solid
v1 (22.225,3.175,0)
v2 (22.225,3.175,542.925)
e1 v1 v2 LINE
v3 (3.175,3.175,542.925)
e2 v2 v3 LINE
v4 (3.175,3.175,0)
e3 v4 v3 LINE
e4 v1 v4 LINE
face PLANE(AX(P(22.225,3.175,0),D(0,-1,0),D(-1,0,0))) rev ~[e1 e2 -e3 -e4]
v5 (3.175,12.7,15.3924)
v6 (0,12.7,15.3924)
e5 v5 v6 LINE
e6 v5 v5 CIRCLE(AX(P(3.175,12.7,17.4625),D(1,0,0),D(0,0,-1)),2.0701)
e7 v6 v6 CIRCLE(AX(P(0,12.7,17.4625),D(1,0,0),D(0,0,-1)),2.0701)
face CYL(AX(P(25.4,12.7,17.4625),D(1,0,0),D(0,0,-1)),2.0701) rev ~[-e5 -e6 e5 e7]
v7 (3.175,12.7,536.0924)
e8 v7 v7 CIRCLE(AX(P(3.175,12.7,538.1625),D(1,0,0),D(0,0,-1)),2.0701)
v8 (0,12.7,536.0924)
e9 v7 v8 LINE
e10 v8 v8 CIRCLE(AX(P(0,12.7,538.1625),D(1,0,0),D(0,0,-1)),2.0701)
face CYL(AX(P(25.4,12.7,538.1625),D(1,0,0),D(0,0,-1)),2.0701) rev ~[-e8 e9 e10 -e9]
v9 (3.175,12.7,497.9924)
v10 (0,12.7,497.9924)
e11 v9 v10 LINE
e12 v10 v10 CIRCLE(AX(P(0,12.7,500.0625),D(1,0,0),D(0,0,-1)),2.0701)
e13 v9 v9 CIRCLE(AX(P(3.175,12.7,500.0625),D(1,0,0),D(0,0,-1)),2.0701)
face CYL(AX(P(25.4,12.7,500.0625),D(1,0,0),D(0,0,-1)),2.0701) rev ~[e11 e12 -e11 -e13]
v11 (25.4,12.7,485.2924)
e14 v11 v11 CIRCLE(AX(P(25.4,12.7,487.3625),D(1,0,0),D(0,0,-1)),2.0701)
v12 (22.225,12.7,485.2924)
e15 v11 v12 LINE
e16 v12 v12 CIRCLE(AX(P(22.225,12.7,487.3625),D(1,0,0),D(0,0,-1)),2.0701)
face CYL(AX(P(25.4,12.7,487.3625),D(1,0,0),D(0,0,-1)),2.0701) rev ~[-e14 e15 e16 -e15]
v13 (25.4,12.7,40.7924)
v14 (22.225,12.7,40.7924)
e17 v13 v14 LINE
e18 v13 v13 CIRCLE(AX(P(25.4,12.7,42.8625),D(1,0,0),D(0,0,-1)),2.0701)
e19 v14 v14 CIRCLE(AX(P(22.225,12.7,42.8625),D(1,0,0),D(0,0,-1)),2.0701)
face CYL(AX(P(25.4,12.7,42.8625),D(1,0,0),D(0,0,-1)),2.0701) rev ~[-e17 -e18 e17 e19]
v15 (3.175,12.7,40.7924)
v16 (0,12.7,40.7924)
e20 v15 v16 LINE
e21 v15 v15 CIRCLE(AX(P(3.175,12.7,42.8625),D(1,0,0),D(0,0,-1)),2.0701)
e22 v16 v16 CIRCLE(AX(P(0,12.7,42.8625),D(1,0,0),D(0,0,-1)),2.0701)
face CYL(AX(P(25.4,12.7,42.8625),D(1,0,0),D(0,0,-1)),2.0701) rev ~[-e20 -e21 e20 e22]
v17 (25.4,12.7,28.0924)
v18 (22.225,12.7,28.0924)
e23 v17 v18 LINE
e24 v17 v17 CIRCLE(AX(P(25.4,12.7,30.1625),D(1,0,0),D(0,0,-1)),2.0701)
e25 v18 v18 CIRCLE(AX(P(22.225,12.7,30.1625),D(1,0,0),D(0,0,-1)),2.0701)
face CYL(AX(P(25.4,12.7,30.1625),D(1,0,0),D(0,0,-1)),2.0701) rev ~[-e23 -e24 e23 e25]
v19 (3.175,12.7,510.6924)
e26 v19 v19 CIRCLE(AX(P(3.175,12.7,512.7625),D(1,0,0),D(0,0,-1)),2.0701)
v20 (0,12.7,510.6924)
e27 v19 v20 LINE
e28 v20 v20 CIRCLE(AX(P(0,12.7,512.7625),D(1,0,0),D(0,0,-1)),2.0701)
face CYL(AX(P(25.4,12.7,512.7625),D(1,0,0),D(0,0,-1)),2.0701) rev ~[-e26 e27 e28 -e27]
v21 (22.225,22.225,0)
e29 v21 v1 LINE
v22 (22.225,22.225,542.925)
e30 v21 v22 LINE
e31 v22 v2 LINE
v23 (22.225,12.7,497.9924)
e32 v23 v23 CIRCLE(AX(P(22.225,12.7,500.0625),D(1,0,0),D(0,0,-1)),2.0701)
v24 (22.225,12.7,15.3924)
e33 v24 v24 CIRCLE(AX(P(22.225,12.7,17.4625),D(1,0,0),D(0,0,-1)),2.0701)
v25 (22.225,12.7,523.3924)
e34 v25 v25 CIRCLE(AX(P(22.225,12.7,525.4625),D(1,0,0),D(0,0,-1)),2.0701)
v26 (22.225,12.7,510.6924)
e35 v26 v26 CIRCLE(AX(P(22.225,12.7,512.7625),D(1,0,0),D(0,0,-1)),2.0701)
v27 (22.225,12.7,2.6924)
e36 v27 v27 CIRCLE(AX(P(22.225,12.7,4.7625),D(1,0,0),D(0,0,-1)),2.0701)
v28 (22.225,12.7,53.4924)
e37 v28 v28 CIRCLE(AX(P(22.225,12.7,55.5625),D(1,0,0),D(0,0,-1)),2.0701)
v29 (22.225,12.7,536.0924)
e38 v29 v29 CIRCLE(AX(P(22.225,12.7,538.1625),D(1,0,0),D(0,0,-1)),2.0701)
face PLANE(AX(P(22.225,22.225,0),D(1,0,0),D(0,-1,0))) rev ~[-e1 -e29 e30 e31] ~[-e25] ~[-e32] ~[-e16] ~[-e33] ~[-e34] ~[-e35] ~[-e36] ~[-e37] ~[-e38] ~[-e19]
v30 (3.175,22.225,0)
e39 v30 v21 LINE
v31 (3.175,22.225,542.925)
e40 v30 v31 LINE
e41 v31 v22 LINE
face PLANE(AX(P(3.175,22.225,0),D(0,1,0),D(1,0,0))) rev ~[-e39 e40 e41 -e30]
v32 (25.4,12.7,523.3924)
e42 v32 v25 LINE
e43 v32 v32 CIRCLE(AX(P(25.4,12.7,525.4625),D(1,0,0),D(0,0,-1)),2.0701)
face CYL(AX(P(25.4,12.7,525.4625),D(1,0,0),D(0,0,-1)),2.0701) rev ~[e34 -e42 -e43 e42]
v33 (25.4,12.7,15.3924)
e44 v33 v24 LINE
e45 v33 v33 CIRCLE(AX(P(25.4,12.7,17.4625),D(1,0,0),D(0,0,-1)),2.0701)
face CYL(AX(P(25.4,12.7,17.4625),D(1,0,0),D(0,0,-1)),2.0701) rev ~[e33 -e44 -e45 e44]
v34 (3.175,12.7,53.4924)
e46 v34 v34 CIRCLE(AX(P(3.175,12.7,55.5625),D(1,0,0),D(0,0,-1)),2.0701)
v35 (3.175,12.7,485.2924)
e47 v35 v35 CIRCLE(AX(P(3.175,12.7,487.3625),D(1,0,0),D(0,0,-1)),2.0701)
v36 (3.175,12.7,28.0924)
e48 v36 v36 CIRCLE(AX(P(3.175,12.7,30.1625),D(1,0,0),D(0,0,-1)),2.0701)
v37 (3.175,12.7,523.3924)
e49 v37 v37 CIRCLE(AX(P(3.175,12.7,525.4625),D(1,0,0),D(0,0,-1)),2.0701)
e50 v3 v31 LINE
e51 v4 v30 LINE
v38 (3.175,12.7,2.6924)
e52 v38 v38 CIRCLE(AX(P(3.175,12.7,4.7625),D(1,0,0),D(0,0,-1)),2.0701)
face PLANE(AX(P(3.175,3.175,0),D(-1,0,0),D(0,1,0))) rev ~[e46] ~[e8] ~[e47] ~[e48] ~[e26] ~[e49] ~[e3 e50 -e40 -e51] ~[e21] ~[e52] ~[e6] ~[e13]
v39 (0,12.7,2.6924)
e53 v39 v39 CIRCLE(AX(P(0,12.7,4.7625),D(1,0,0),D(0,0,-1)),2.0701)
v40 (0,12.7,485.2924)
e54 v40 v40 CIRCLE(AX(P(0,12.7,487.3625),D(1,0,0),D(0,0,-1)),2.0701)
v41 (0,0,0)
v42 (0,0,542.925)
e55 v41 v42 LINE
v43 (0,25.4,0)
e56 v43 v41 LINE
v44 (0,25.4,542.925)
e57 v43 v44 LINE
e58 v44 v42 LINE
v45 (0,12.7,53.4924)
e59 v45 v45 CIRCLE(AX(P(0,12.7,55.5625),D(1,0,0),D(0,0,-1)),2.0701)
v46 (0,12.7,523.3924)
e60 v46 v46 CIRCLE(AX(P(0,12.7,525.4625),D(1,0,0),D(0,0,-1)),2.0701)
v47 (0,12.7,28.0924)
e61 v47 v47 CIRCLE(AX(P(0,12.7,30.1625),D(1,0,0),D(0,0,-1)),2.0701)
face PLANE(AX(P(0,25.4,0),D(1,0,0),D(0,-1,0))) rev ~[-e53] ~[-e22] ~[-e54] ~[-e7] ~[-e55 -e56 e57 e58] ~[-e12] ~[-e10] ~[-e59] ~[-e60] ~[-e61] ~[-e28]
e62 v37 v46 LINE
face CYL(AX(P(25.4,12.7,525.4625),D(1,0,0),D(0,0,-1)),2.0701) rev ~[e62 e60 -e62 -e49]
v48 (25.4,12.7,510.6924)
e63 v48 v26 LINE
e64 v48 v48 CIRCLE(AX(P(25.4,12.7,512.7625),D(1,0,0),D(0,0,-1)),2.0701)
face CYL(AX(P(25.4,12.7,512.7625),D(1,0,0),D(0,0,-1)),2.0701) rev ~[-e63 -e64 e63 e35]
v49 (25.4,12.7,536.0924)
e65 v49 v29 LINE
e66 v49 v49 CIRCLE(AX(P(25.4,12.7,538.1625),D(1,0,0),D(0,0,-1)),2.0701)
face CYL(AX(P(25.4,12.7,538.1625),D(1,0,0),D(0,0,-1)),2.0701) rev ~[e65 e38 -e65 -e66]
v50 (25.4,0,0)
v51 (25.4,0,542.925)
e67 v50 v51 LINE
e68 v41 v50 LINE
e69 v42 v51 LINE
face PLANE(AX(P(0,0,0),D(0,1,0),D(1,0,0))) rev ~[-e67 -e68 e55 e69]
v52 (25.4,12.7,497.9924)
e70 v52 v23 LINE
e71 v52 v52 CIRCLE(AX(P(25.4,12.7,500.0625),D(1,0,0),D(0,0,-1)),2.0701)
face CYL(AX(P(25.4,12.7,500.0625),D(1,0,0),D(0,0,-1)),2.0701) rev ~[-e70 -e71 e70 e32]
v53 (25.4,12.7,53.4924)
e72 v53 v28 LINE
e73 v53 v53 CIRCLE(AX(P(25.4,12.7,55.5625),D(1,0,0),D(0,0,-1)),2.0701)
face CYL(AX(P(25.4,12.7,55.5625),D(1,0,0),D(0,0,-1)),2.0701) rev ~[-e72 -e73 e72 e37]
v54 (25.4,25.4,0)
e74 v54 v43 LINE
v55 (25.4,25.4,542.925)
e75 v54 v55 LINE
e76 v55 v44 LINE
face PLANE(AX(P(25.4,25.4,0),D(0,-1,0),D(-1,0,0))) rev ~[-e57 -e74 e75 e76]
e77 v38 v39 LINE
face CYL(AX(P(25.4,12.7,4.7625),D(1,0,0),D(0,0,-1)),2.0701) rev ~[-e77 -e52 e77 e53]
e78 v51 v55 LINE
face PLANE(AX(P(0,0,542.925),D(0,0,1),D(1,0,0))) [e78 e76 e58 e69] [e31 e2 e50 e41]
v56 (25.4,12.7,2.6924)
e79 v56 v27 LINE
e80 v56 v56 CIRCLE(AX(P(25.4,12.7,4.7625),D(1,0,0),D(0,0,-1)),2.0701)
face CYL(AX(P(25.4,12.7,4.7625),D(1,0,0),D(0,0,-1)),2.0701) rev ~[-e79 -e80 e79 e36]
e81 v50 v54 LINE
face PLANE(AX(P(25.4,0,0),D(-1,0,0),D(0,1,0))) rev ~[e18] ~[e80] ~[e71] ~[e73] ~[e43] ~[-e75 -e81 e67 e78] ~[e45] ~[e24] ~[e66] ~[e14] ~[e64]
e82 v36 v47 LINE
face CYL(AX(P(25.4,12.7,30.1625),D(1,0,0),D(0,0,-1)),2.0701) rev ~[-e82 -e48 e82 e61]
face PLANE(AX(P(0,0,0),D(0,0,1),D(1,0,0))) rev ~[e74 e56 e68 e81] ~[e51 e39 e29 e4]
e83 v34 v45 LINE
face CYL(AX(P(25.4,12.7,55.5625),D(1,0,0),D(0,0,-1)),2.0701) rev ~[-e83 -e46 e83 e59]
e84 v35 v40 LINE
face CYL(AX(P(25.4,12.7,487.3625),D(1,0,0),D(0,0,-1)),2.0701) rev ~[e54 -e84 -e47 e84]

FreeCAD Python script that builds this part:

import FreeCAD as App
import Part
import Sketcher

V = App.Vector
Q = App.Units.Quantity


def add_polygon(sketch, points):
    """Adds a closed chain of lines whose ends are joined by coincident constraints."""
    first, n = sketch.GeometryCount, len(points)
    for a, b in zip(points, points[1:] + points[:1]):
        sketch.addGeometry(Part.LineSegment(App.Vector(*a, 0), App.Vector(*b, 0)), False)
    for i in range(n):
        sketch.addConstraint(Sketcher.Constraint("Coincident", first + i, 2, first + (i + 1) % n, 1))

doc = App.newDocument("Part")
body = doc.addObject("PartDesign::Body", "Body")

# Sketch on XY plane
sketch1 = doc.addObject("Sketcher::SketchObject", "Sketch")
body.addObject(sketch1)
sketch1.AttachmentSupport = (doc.XY_Plane, [""])
sketch1.MapMode = "FlatFace"
add_polygon(sketch1, [(0, 25), (0, 0), (25, 0), (25, 25)])  # lines 0-3
add_polygon(sketch1, [(3, 3), (3, 22), (22, 22), (22, 3)])  # lines 4-7
sketch1.addConstraint([
    Sketcher.Constraint("Vertical", 0),
    Sketcher.Constraint("Horizontal", 1),
    Sketcher.Constraint("Vertical", 2),
    Sketcher.Constraint("Horizontal", 3),
    Sketcher.Constraint("Vertical", 4),
    Sketcher.Constraint("Horizontal", 5),
    Sketcher.Constraint("Vertical", 6),
    Sketcher.Constraint("Horizontal", 7),
    Sketcher.Constraint("Coincident", 0, 2, -1, 1),
    Sketcher.Constraint("Equal", 3, 0),
    Sketcher.Constraint("Equal", 7, 4),
    Sketcher.Constraint("DistanceX", 1, 1, 1, 2, Q("1 in")),
    Sketcher.Constraint("DistanceX", -1, 1, 4, 2, Q("0.125 in")),
    Sketcher.Constraint("DistanceY", -1, 1, 6, 2, Q("0.125 in")),
    Sketcher.Constraint("DistanceY", 4, 2, 3, 2, Q("0.125 in")),
])
pad1 = doc.addObject("PartDesign::Pad", "Pad")
body.addObject(pad1)
pad1.Profile = sketch1
pad1.Length = Q("21.375 in")

# Sketch on YZ plane
sketch2 = doc.addObject("Sketcher::SketchObject", "Sketch001")
body.addObject(sketch2)
sketch2.AttachmentSupport = (doc.YZ_Plane, [""])
sketch2.MapMode = "FlatFace"
sketch2.AttachmentOffset = App.Placement(V(0, 0, 1 * 25.4), App.Rotation())
sketch2.addGeometry([
    Part.Circle(V(12.7, 538.2, 0), V(0, 0, 1), 2.1),  # 0
    Part.Circle(V(12.7, 525.5, 0), V(0, 0, 1), 2.1),  # 1
    Part.Circle(V(12.7, 512.8, 0), V(0, 0, 1), 2.1),  # 2
    Part.Circle(V(12.7, 500.1, 0), V(0, 0, 1), 2.1),  # 3
    Part.Circle(V(12.7, 487.4, 0), V(0, 0, 1), 2.1),  # 4
    Part.Circle(V(12.7, 4.8, 0), V(0, 0, 1), 2.1),  # 5
    Part.Circle(V(12.7, 17.5, 0), V(0, 0, 1), 2.1),  # 6
    Part.Circle(V(12.7, 30.2, 0), V(0, 0, 1), 2.1),  # 7
    Part.Circle(V(12.7, 42.9, 0), V(0, 0, 1), 2.1),  # 8
    Part.Circle(V(12.7, 55.6, 0), V(0, 0, 1), 2.1),  # 9
], False)
sketch2.addConstraint([
    Sketcher.Constraint("Equal", 0, 1),
    Sketcher.Constraint("Equal", 1, 2),
    Sketcher.Constraint("Equal", 2, 3),
    Sketcher.Constraint("Equal", 3, 4),
    Sketcher.Constraint("Equal", 4, 5),
    Sketcher.Constraint("Equal", 5, 6),
    Sketcher.Constraint("Equal", 6, 7),
    Sketcher.Constraint("Equal", 7, 8),
    Sketcher.Constraint("Equal", 8, 9),
    Sketcher.Constraint("Vertical", 0, 3, 1, 3),
    Sketcher.Constraint("Vertical", 1, 3, 2, 3),
    Sketcher.Constraint("Vertical", 2, 3, 3, 3),
    Sketcher.Constraint("Vertical", 3, 3, 4, 3),
    Sketcher.Constraint("Vertical", 4, 3, 5, 3),
    Sketcher.Constraint("Vertical", 5, 3, 6, 3),
    Sketcher.Constraint("Vertical", 6, 3, 7, 3),
    Sketcher.Constraint("Vertical", 7, 3, 8, 3),
    Sketcher.Constraint("Vertical", 8, 3, 9, 3),
    Sketcher.Constraint("Diameter", 0, Q("0.163 in")),
    Sketcher.Constraint("DistanceY", 2, 3, 0, 3, Q("1 in")),
    Sketcher.Constraint("DistanceY", 3, 3, 1, 3, Q("1 in")),
    Sketcher.Constraint("DistanceY", 4, 3, 2, 3, Q("1 in")),
    Sketcher.Constraint("DistanceY", 5, 3, 7, 3, Q("1 in")),
    Sketcher.Constraint("DistanceY", 6, 3, 8, 3, Q("1 in")),
    Sketcher.Constraint("DistanceY", 7, 3, 9, 3, Q("1 in")),
    Sketcher.Constraint("DistanceX", -1, 1, 0, 3, Q("0.5 in")),
    Sketcher.Constraint("DistanceY", 1, 3, 0, 3, Q("0.5 in")),
    Sketcher.Constraint("DistanceY", 5, 3, 6, 3, Q("0.5 in")),
    Sketcher.Constraint("DistanceY", -1, 1, 5, 3, Q("0.1875 in")),
    Sketcher.Constraint("DistanceY", 5, 3, 4, 3, Q("19 in")),
])
pocket1 = doc.addObject("PartDesign::Pocket", "Pocket")
body.addObject(pocket1)
pocket1.Profile = sketch2
pocket1.Length = Q("23.375 in")

doc.recompute()
